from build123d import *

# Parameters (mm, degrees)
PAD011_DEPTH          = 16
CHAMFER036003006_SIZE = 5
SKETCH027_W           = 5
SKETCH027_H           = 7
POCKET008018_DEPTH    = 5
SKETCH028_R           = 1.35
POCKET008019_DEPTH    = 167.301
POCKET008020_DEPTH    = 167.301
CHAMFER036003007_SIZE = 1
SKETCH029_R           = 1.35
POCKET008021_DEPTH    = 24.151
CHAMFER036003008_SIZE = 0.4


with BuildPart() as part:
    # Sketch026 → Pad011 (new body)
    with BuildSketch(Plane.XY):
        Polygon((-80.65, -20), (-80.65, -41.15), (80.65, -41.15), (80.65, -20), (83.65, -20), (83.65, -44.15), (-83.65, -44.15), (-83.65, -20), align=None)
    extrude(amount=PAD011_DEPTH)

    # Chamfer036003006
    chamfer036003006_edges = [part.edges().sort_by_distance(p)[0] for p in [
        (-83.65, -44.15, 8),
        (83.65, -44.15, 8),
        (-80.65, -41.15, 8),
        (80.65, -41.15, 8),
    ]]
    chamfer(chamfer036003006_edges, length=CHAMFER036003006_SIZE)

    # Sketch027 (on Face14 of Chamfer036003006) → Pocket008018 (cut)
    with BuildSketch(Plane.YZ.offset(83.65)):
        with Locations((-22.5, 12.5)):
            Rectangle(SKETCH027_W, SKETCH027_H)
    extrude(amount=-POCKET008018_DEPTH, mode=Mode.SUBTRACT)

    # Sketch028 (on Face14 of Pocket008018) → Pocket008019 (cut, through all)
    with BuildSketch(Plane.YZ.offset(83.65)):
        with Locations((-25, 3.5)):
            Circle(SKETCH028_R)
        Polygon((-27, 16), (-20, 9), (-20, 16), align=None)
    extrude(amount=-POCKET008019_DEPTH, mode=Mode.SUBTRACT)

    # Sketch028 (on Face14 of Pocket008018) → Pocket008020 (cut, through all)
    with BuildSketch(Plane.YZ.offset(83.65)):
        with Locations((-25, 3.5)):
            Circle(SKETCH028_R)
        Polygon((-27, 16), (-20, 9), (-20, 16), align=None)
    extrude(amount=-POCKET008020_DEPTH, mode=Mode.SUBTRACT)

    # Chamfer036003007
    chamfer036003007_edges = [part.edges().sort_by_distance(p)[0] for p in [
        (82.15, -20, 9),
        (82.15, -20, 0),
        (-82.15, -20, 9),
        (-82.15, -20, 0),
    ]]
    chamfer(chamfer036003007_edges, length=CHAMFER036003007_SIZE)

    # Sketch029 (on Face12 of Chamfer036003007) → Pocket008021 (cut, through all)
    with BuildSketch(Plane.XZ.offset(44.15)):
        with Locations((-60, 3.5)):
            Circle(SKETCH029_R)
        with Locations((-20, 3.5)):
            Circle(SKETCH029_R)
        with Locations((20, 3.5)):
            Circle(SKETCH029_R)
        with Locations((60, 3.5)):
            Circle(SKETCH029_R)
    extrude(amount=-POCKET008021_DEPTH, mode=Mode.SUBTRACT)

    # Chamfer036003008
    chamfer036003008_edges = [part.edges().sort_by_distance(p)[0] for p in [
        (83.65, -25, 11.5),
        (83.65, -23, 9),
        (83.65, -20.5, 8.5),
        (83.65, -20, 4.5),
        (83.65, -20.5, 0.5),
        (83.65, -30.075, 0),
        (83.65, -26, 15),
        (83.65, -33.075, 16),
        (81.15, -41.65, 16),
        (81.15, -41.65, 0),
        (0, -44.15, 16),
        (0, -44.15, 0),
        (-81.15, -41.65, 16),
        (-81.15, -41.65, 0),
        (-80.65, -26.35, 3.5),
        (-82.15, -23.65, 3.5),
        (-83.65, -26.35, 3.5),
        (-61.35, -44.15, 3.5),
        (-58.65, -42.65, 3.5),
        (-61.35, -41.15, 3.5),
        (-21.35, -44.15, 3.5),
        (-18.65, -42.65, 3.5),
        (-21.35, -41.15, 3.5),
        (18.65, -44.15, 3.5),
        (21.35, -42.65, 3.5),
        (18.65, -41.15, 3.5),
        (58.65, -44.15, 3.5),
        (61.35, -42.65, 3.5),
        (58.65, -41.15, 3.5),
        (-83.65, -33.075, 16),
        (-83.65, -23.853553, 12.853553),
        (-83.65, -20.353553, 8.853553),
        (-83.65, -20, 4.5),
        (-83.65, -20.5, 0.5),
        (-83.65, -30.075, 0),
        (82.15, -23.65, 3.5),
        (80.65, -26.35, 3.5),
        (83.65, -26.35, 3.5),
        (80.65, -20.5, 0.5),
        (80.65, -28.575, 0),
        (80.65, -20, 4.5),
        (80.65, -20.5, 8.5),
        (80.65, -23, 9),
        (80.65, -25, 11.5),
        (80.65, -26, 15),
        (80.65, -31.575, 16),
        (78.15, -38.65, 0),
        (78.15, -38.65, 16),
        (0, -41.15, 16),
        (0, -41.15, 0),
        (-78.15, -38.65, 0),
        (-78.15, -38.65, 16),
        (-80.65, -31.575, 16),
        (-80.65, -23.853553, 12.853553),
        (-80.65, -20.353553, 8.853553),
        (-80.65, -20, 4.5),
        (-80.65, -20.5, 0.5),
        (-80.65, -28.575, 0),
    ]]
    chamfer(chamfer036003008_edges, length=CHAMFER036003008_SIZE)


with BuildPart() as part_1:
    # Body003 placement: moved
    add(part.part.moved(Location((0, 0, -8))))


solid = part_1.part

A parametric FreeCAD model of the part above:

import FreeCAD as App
import Part
import Sketcher


def edges_at(feature, points):
    """Names of the edges that pass closest to the given points."""
    edges = feature.Shape.Edges
    near = lambda p: min(range(len(edges)), key=lambda i: edges[i].distToShape(Part.Vertex(*p))[0])
    return sorted({f"Edge{near(p) + 1}" for p in points})


def add_polygon(sketch, points):
    """Adds a closed chain of lines whose ends are joined by coincident constraints."""
    first, n = sketch.GeometryCount, len(points)
    for a, b in zip(points, points[1:] + points[:1]):
        sketch.addGeometry(Part.LineSegment(App.Vector(*a, 0), App.Vector(*b, 0)), False)
    for i in range(n):
        sketch.addConstraint(Sketcher.Constraint("Coincident", first + i, 2, first + (i + 1) % n, 1))

doc = App.newDocument("Part")
body = doc.addObject("PartDesign::Body", "Body")

# Sketch on XY plane
sketch1 = body.newObject("Sketcher::SketchObject", "Sketch")
sketch1.AttachmentSupport = (doc.getObject("XY_Plane"), [""])
sketch1.MapMode = "FlatFace"
add_polygon(sketch1, [(-80.65, -41.15), (-80.65, -20), (-83.65, -20), (-83.65, -44.15), (83.65, -44.15), (83.65, -20), (80.65, -20), (80.65, -41.15)])  # lines 0-7
sketch1.addConstraint(Sketcher.Constraint("Vertical", 0))
sketch1.addConstraint(Sketcher.Constraint("Horizontal", 1))
sketch1.addConstraint(Sketcher.Constraint("Vertical", 2))
sketch1.addConstraint(Sketcher.Constraint("Horizontal", 3))
sketch1.addConstraint(Sketcher.Constraint("Vertical", 4))
sketch1.addConstraint(Sketcher.Constraint("Horizontal", 5))
sketch1.addConstraint(Sketcher.Constraint("Vertical", 6))
sketch1.addConstraint(Sketcher.Constraint("Horizontal", 7))
sketch1.addConstraint(Sketcher.Constraint("Symmetric", 1, 2, 4, 2, -2))
sketch1.addConstraint(Sketcher.Constraint("Equal", 1, 5))
sketch1.addConstraint(Sketcher.Constraint("DistanceX", 1, 2, 1, 1, 3.0))
sketch1.addConstraint(Sketcher.Constraint("DistanceX", 3, 1, 3, 2, 167.3))
sketch1.addConstraint(Sketcher.Constraint("DistanceY", 0, 2, -1, 1, 20.0))
sketch1.addConstraint(Sketcher.Constraint("DistanceY", 3, 2, 6, 2, 3.0))
sketch1.addConstraint(Sketcher.Constraint("DistanceY", 0, 1, 0, 2, 21.15))
pad1 = body.newObject("PartDesign::Pad", "Pad")
pad1.Profile = sketch1
pad1.Length = 16
doc.recompute()

chamfer = body.newObject("PartDesign::Chamfer", "Chamfer")
chamfer.Base = (pad1, edges_at(pad1, [
    (-83.65, -44.15, 8),
    (83.65, -44.15, 8),
    (-80.65, -41.15, 8),
    (80.65, -41.15, 8),
]))
chamfer.Size = 5

# Sketch on YZ plane
sketch2 = body.newObject("Sketcher::SketchObject", "Sketch001")
sketch2.AttachmentSupport = (doc.getObject("YZ_Plane"), [""])
sketch2.MapMode = "FlatFace"
sketch2.AttachmentOffset = App.Placement(App.Vector(0, 0, 83.65), App.Rotation())
add_polygon(sketch2, [(-25, 16), (-25, 9), (-20, 9), (-20, 16)])  # lines 0-3
sketch2.addConstraint(Sketcher.Constraint("Vertical", 0))
sketch2.addConstraint(Sketcher.Constraint("Horizontal", 1))
sketch2.addConstraint(Sketcher.Constraint("Vertical", 2))
sketch2.addConstraint(Sketcher.Constraint("Horizontal", 3))
sketch2.addConstraint(Sketcher.Constraint("DistanceX", 1, 1, 1, 2, 5.0))
sketch2.addConstraint(Sketcher.Constraint("DistanceY", 0, 2, 0, 1, 7.0))
sketch2.addConstraint(Sketcher.Constraint("DistanceX", 0, 2, -1, 1, 25.0))
sketch2.addConstraint(Sketcher.Constraint("DistanceY", -1, 1, 0, 2, 9.0))
pocket1 = body.newObject("PartDesign::Pocket", "Pocket")
pocket1.Profile = sketch2
pocket1.Length = 5

# Sketch on YZ plane
sketch3 = body.newObject("Sketcher::SketchObject", "Sketch002")
sketch3.AttachmentSupport = (doc.getObject("YZ_Plane"), [""])
sketch3.MapMode = "FlatFace"
sketch3.AttachmentOffset = App.Placement(App.Vector(0, 0, 83.65), App.Rotation())
sketch3.addGeometry(Part.Circle(App.Vector(-25, 3.5, 0), App.Vector(0, 0, 1), 1.35), False)  # 0
add_polygon(sketch3, [(-27, 16), (-20, 9), (-20, 16)])  # lines 1-3
sketch3.addConstraint(Sketcher.Constraint("Vertical", 2))
sketch3.addConstraint(Sketcher.Constraint("Horizontal", 3))
sketch3.addConstraint(Sketcher.Constraint("Equal", 3, 2))
sketch3.addConstraint(Sketcher.Constraint("Diameter", 0, 2.7))
sketch3.addConstraint(Sketcher.Constraint("DistanceX", 3, 2, 3, 1, 7.0))
sketch3.addConstraint(Sketcher.Constraint("DistanceX", 0, 3, -1, 1, 25.0))
sketch3.addConstraint(Sketcher.Constraint("DistanceX", 1, 2, -1, 1, 20.0))
sketch3.addConstraint(Sketcher.Constraint("DistanceY", -1, 1, 1, 2, 9.0))
sketch3.addConstraint(Sketcher.Constraint("DistanceY", -1, 1, 0, 3, 3.5))
pocket2 = body.newObject("PartDesign::Pocket", "Pocket001")
pocket2.Profile = sketch3
pocket2.Type = "ThroughAll"

# Sketch on YZ plane
sketch4 = body.newObject("Sketcher::SketchObject", "Sketch003")
sketch4.AttachmentSupport = (doc.getObject("YZ_Plane"), [""])
sketch4.MapMode = "FlatFace"
sketch4.AttachmentOffset = App.Placement(App.Vector(0, 0, 83.65), App.Rotation())
sketch4.addGeometry(Part.Circle(App.Vector(-25, 3.5, 0), App.Vector(0, 0, 1), 1.35), False)  # 0
add_polygon(sketch4, [(-27, 16), (-20, 9), (-20, 16)])  # lines 1-3
sketch4.addConstraint(Sketcher.Constraint("Vertical", 2))
sketch4.addConstraint(Sketcher.Constraint("Horizontal", 3))
sketch4.addConstraint(Sketcher.Constraint("Equal", 3, 2))
sketch4.addConstraint(Sketcher.Constraint("Diameter", 0, 2.7))
sketch4.addConstraint(Sketcher.Constraint("DistanceX", 3, 2, 3, 1, 7.0))
sketch4.addConstraint(Sketcher.Constraint("DistanceX", 0, 3, -1, 1, 25.0))
sketch4.addConstraint(Sketcher.Constraint("DistanceX", 1, 2, -1, 1, 20.0))
sketch4.addConstraint(Sketcher.Constraint("DistanceY", -1, 1, 1, 2, 9.0))
sketch4.addConstraint(Sketcher.Constraint("DistanceY", -1, 1, 0, 3, 3.5))
pocket3 = body.newObject("PartDesign::Pocket", "Pocket002")
pocket3.Profile = sketch4
pocket3.Type = "ThroughAll"
doc.recompute()

chamfer2 = body.newObject("PartDesign::Chamfer", "Chamfer001")
chamfer2.Base = (pocket3, edges_at(pocket3, [
    (82.15, -20, 9),
    (82.15, -20, 0),
    (-82.15, -20, 9),
    (-82.15, -20, 0),
]))
chamfer2.Size = 1

# Sketch on XZ plane
sketch5 = body.newObject("Sketcher::SketchObject", "Sketch004")
sketch5.AttachmentSupport = (doc.getObject("XZ_Plane"), [""])
sketch5.MapMode = "FlatFace"
sketch5.AttachmentOffset = App.Placement(App.Vector(0, 0, 44.15), App.Rotation())
sketch5.addGeometry(Part.Circle(App.Vector(-60, 3.5, 0), App.Vector(0, 0, 1), 1.35), False)
sketch5.addGeometry(Part.Circle(App.Vector(-20, 3.5, 0), App.Vector(0, 0, 1), 1.35), False)
sketch5.addGeometry(Part.Circle(App.Vector(20, 3.5, 0), App.Vector(0, 0, 1), 1.35), False)
sketch5.addGeometry(Part.Circle(App.Vector(60, 3.5, 0), App.Vector(0, 0, 1), 1.35), False)
sketch5.addConstraint(Sketcher.Constraint("Equal", 0, 1))
sketch5.addConstraint(Sketcher.Constraint("Equal", 1, 2))
sketch5.addConstraint(Sketcher.Constraint("Equal", 2, 3))
sketch5.addConstraint(Sketcher.Constraint("Symmetric", 1, 3, 2, 3, -2))
sketch5.addConstraint(Sketcher.Constraint("Symmetric", 0, 3, 3, 3, -2))
sketch5.addConstraint(Sketcher.Constraint("Horizontal", 0, 3, 1, 3))
sketch5.addConstraint(Sketcher.Constraint("Diameter", 0, 2.7))
sketch5.addConstraint(Sketcher.Constraint("DistanceX", 0, 3, -1, 1, 60.0))
sketch5.addConstraint(Sketcher.Constraint("DistanceX", 1, 3, -1, 1, 20.0))
sketch5.addConstraint(Sketcher.Constraint("DistanceY", -1, 1, 0, 3, 3.5))
pocket4 = body.newObject("PartDesign::Pocket", "Pocket003")
pocket4.Profile = sketch5
pocket4.Type = "ThroughAll"
doc.recompute()

chamfer3 = body.newObject("PartDesign::Chamfer", "Chamfer002")
chamfer3.Base = (pocket4, edges_at(pocket4, [
    (83.65, -25, 11.5),
    (83.65, -23, 9),
    (83.65, -20.5, 8.5),
    (83.65, -20, 4.5),
    (83.65, -20.5, 0.5),
    (83.65, -30.075, 0),
    (83.65, -26, 15),
    (83.65, -33.075, 16),
    (81.15, -41.65, 16),
    (81.15, -41.65, 0),
    (0, -44.15, 16),
    (0, -44.15, 0),
    (-81.15, -41.65, 16),
    (-81.15, -41.65, 0),
    (-80.65, -26.35, 3.5),
    (-82.15, -23.65, 3.5),
    (-83.65, -26.35, 3.5),
    (-61.35, -44.15, 3.5),
    (-58.65, -42.65, 3.5),
    (-61.35, -41.15, 3.5),
    (-21.35, -44.15, 3.5),
    (-18.65, -42.65, 3.5),
    (-21.35, -41.15, 3.5),
    (18.65, -44.15, 3.5),
    (21.35, -42.65, 3.5),
    (18.65, -41.15, 3.5),
    (58.65, -44.15, 3.5),
    (61.35, -42.65, 3.5),
    (58.65, -41.15, 3.5),
    (-83.65, -33.075, 16),
    (-83.65, -23.854, 12.854),
    (-83.65, -20.354, 8.854),
    (-83.65, -20, 4.5),
    (-83.65, -20.5, 0.5),
    (-83.65, -30.075, 0),
    (82.15, -23.65, 3.5),
    (80.65, -26.35, 3.5),
    (83.65, -26.35, 3.5),
    (80.65, -20.5, 0.5),
    (80.65, -28.575, 0),
    (80.65, -20, 4.5),
    (80.65, -20.5, 8.5),
    (80.65, -23, 9),
    (80.65, -25, 11.5),
    (80.65, -26, 15),
    (80.65, -31.575, 16),
    (78.15, -38.65, 0),
    (78.15, -38.65, 16),
    (0, -41.15, 16),
    (0, -41.15, 0),
    (-78.15, -38.65, 0),
    (-78.15, -38.65, 16),
    (-80.65, -31.575, 16),
    (-80.65, -23.854, 12.854),
    (-80.65, -20.354, 8.854),
    (-80.65, -20, 4.5),
    (-80.65, -20.5, 0.5),
    (-80.65, -28.575, 0),
]))
chamfer3.Size = 0.4
body2 = doc.addObject("PartDesign::Body", "Body001")
doc.recompute()

body.Placement = App.Placement(App.Vector(0, 0, -8), App.Rotation(App.Vector(0, 0, 1), 0))
boolean = body2.newObject("PartDesign::Boolean", "Boolean")
boolean.Type = "Fuse"
boolean.addObjects([body])

doc.recompute()
